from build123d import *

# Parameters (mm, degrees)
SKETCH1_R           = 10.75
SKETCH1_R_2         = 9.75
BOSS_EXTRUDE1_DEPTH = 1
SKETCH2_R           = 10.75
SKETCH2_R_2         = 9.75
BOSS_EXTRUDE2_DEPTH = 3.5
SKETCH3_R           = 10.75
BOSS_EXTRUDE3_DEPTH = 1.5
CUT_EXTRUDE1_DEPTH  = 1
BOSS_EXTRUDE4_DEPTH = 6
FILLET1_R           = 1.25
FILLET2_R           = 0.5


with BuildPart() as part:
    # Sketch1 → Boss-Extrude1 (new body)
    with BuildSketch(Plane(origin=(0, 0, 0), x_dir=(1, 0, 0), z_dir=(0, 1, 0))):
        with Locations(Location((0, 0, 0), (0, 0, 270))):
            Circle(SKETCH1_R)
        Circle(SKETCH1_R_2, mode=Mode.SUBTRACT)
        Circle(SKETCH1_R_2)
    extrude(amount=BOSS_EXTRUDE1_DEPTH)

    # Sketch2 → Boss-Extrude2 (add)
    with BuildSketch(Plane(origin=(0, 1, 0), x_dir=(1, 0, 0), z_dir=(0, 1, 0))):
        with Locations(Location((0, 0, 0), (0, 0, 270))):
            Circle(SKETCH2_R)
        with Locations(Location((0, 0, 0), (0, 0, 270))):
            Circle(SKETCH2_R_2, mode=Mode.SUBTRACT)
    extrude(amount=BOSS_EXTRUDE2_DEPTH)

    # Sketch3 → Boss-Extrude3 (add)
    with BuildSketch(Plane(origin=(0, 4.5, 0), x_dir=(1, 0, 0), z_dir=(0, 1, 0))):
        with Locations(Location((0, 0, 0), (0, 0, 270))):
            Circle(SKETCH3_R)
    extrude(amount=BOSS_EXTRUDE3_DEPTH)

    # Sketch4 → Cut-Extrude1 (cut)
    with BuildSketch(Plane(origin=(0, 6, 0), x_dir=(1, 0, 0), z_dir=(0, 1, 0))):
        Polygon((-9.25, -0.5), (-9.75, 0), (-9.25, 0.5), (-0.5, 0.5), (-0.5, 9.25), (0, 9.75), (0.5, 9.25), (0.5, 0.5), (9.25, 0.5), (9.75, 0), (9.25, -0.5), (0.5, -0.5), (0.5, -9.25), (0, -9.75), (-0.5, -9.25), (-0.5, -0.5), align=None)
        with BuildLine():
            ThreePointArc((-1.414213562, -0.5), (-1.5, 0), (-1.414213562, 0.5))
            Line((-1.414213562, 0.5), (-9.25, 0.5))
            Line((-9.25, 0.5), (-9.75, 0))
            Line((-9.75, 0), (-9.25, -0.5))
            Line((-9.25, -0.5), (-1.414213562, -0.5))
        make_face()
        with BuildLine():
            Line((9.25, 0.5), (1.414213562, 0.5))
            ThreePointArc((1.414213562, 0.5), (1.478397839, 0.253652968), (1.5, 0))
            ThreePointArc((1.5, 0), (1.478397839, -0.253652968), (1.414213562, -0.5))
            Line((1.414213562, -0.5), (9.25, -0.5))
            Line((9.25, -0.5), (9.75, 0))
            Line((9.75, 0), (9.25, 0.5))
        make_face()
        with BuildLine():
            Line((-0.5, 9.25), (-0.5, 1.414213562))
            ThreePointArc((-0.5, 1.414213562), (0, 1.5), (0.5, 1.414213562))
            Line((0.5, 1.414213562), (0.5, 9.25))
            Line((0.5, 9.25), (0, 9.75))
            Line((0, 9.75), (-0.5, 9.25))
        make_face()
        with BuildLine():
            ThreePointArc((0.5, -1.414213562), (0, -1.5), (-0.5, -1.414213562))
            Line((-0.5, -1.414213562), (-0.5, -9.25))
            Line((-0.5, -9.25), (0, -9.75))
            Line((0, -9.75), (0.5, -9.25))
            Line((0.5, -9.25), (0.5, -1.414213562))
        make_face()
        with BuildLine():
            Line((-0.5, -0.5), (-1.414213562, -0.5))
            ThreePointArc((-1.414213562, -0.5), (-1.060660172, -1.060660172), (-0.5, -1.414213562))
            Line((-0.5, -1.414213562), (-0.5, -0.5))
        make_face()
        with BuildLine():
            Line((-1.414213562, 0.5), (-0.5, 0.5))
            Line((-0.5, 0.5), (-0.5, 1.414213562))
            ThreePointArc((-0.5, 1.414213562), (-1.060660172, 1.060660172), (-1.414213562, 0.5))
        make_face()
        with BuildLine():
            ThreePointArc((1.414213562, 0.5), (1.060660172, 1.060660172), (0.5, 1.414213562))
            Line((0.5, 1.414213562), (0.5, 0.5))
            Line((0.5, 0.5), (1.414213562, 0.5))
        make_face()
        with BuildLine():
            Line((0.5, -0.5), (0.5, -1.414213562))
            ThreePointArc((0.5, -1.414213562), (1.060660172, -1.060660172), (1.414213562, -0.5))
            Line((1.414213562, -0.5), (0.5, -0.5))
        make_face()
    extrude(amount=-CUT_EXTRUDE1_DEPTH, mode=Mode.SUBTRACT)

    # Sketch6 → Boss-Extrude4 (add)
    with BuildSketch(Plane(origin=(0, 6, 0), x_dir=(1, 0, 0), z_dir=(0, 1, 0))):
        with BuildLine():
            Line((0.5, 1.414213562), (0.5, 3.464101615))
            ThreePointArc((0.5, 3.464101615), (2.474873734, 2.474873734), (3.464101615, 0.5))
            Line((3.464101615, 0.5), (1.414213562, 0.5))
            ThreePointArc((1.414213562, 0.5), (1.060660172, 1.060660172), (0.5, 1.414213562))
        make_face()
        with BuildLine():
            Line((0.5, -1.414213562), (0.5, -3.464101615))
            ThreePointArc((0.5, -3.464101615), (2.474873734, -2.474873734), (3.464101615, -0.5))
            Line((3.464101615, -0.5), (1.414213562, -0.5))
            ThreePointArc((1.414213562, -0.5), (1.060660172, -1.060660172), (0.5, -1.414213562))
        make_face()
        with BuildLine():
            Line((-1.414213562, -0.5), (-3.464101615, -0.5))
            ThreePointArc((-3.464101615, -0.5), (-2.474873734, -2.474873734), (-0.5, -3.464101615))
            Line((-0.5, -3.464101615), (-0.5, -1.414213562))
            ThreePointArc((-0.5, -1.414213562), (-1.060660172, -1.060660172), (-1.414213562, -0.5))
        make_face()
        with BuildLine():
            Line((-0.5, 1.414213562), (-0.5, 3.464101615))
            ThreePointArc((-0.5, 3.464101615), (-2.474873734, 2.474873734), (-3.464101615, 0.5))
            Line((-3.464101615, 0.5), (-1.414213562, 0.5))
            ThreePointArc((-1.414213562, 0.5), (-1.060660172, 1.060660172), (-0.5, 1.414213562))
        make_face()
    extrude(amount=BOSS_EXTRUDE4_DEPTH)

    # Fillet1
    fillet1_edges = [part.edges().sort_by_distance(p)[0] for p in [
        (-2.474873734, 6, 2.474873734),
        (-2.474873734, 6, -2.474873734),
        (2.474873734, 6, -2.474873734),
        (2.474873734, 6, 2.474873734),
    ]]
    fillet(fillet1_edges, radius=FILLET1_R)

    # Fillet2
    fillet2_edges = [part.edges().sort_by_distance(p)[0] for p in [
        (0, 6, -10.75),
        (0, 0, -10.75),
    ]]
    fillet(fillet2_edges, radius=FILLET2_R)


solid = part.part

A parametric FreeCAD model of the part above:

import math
import FreeCAD as App
import Part
import Sketcher


def edges_at(feature, points):
    """Names of the edges that pass closest to the given points."""
    edges = feature.Shape.Edges
    near = lambda p: min(range(len(edges)), key=lambda i: edges[i].distToShape(Part.Vertex(*p))[0])
    return sorted({f"Edge{near(p) + 1}" for p in points})

doc = App.newDocument("Part")
body = doc.addObject("PartDesign::Body", "Body")

sketch1 = body.newObject("Sketcher::SketchObject", "Sketch")
sketch1.AttachmentSupport = (doc.getObject("XZ_Plane"), [""])
sketch1.MapMode = "FlatFace"
sketch1.addGeometry(Part.Circle(App.Vector(0, 0, 0), App.Vector(0, 0, 1), 10.75), False)
sketch1.addConstraint(Sketcher.Constraint("Coincident", 0, 3, -1, 1))
sketch1.addConstraint(Sketcher.Constraint("Diameter", 0, 21.5))
pad1 = body.newObject("PartDesign::Pad", "Pad")
pad1.Profile = sketch1
pad1.Length = 1
pad1.Reversed = True

sketch2 = body.newObject("Sketcher::SketchObject", "Sketch001")
sketch2.AttachmentSupport = (doc.getObject("XZ_Plane"), [""])
sketch2.MapMode = "FlatFace"
sketch2.AttachmentOffset = App.Placement(App.Vector(0, 0, -1), App.Rotation())
sketch2.addGeometry(Part.Circle(App.Vector(0, 0, 0), App.Vector(0, 0, 1), 10.75), False)
sketch2.addGeometry(Part.Circle(App.Vector(0, 0, 0), App.Vector(0, 0, 1), 9.75), False)
sketch2.addConstraint(Sketcher.Constraint("Coincident", 0, 3, -1, 1))
sketch2.addConstraint(Sketcher.Constraint("Coincident", 1, 3, -1, 1))
sketch2.addConstraint(Sketcher.Constraint("Diameter", 0, 21.5))
sketch2.addConstraint(Sketcher.Constraint("Diameter", 1, 19.5))
pad2 = body.newObject("PartDesign::Pad", "Pad001")
pad2.Profile = sketch2
pad2.Length = 3.5
pad2.Reversed = True

sketch3 = body.newObject("Sketcher::SketchObject", "Sketch002")
sketch3.AttachmentSupport = (doc.getObject("XZ_Plane"), [""])
sketch3.MapMode = "FlatFace"
sketch3.AttachmentOffset = App.Placement(App.Vector(0, 0, -4.5), App.Rotation())
sketch3.addGeometry(Part.Circle(App.Vector(0, 0, 0), App.Vector(0, 0, 1), 10.75), False)
sketch3.addConstraint(Sketcher.Constraint("Coincident", 0, 3, -1, 1))
sketch3.addConstraint(Sketcher.Constraint("Diameter", 0, 21.5))
pad3 = body.newObject("PartDesign::Pad", "Pad002")
pad3.Profile = sketch3
pad3.Length = 1.5
pad3.Reversed = True

sketch4 = body.newObject("Sketcher::SketchObject", "Sketch003")
sketch4.AttachmentSupport = (doc.getObject("XZ_Plane"), [""])
sketch4.MapMode = "FlatFace"
sketch4.AttachmentOffset = App.Placement(App.Vector(0, 0, -6), App.Rotation())
sketch4.addGeometry(Part.LineSegment(App.Vector(-9.25, 0.5, 0), App.Vector(-1.414214, 0.5, 0)), False)
sketch4.addGeometry(Part.ArcOfCircle(Part.Circle(App.Vector(0, 0, 0), App.Vector(0, 0, 1), 1.5), math.radians(109.471221), math.radians(160.528779)), False)
sketch4.addGeometry(Part.LineSegment(App.Vector(-0.5, 1.414214, 0), App.Vector(-0.5, 9.25, 0)), False)
sketch4.addGeometry(Part.LineSegment(App.Vector(-0.5, 9.25, 0), App.Vector(0, 9.75, 0)), False)
sketch4.addGeometry(Part.LineSegment(App.Vector(0, 9.75, 0), App.Vector(0.5, 9.25, 0)), False)
sketch4.addGeometry(Part.LineSegment(App.Vector(0.5, 9.25, 0), App.Vector(0.5, 1.414214, 0)), False)
sketch4.addGeometry(Part.ArcOfCircle(Part.Circle(App.Vector(0, 0, 0), App.Vector(0, 0, 1), 1.5), math.radians(19.471221), math.radians(70.528779)), False)
sketch4.addGeometry(Part.LineSegment(App.Vector(1.414214, 0.5, 0), App.Vector(9.25, 0.5, 0)), False)
sketch4.addGeometry(Part.LineSegment(App.Vector(9.25, 0.5, 0), App.Vector(9.75, 0, 0)), False)
sketch4.addGeometry(Part.LineSegment(App.Vector(9.75, 0, 0), App.Vector(9.25, -0.5, 0)), False)
sketch4.addGeometry(Part.LineSegment(App.Vector(9.25, -0.5, 0), App.Vector(1.414214, -0.5, 0)), False)
sketch4.addGeometry(Part.ArcOfCircle(Part.Circle(App.Vector(0, 0, 0), App.Vector(0, 0, 1), 1.5), math.radians(-70.528779), math.radians(-19.471221)), False)
sketch4.addGeometry(Part.LineSegment(App.Vector(0.5, -1.414214, 0), App.Vector(0.5, -9.25, 0)), False)
sketch4.addGeometry(Part.LineSegment(App.Vector(0.5, -9.25, 0), App.Vector(0, -9.75, 0)), False)
sketch4.addGeometry(Part.LineSegment(App.Vector(0, -9.75, 0), App.Vector(-0.5, -9.25, 0)), False)
sketch4.addGeometry(Part.LineSegment(App.Vector(-0.5, -9.25, 0), App.Vector(-0.5, -1.414214, 0)), False)
sketch4.addGeometry(Part.ArcOfCircle(Part.Circle(App.Vector(0, 0, 0), App.Vector(0, 0, 1), 1.5), math.radians(-160.528779), math.radians(-109.471221)), False)
sketch4.addGeometry(Part.LineSegment(App.Vector(-1.414214, -0.5, 0), App.Vector(-9.25, -0.5, 0)), False)
sketch4.addGeometry(Part.LineSegment(App.Vector(-9.25, -0.5, 0), App.Vector(-9.75, 0, 0)), False)
sketch4.addGeometry(Part.LineSegment(App.Vector(-9.75, 0, 0), App.Vector(-9.25, 0.5, 0)), False)
sketch4.addConstraint(Sketcher.Constraint("Coincident", 0, 2, 1, 2))
sketch4.addConstraint(Sketcher.Constraint("Coincident", 1, 1, 2, 1))
sketch4.addConstraint(Sketcher.Constraint("Coincident", 2, 2, 3, 1))
sketch4.addConstraint(Sketcher.Constraint("Coincident", 3, 2, 4, 1))
sketch4.addConstraint(Sketcher.Constraint("Coincident", 4, 2, 5, 1))
sketch4.addConstraint(Sketcher.Constraint("Coincident", 5, 2, 6, 2))
sketch4.addConstraint(Sketcher.Constraint("Coincident", 6, 1, 7, 1))
sketch4.addConstraint(Sketcher.Constraint("Coincident", 7, 2, 8, 1))
sketch4.addConstraint(Sketcher.Constraint("Coincident", 8, 2, 9, 1))
sketch4.addConstraint(Sketcher.Constraint("Coincident", 9, 2, 10, 1))
sketch4.addConstraint(Sketcher.Constraint("Coincident", 10, 2, 11, 2))
sketch4.addConstraint(Sketcher.Constraint("Coincident", 11, 1, 12, 1))
sketch4.addConstraint(Sketcher.Constraint("Coincident", 12, 2, 13, 1))
sketch4.addConstraint(Sketcher.Constraint("Coincident", 13, 2, 14, 1))
sketch4.addConstraint(Sketcher.Constraint("Coincident", 14, 2, 15, 1))
sketch4.addConstraint(Sketcher.Constraint("Coincident", 15, 2, 16, 2))
sketch4.addConstraint(Sketcher.Constraint("Coincident", 16, 1, 17, 1))
sketch4.addConstraint(Sketcher.Constraint("Coincident", 17, 2, 18, 1))
sketch4.addConstraint(Sketcher.Constraint("Coincident", 18, 2, 19, 1))
sketch4.addConstraint(Sketcher.Constraint("Coincident", 19, 2, 0, 1))
sketch4.addConstraint(Sketcher.Constraint("Horizontal", 0))
sketch4.addConstraint(Sketcher.Constraint("Vertical", 2))
sketch4.addConstraint(Sketcher.Constraint("Vertical", 5))
sketch4.addConstraint(Sketcher.Constraint("Horizontal", 7))
sketch4.addConstraint(Sketcher.Constraint("Horizontal", 10))
sketch4.addConstraint(Sketcher.Constraint("Vertical", 12))
sketch4.addConstraint(Sketcher.Constraint("Vertical", 15))
sketch4.addConstraint(Sketcher.Constraint("Horizontal", 17))
sketch4.addConstraint(Sketcher.Constraint("Coincident", 1, 3, -1, 1))
sketch4.addConstraint(Sketcher.Constraint("Coincident", 6, 3, -1, 1))
sketch4.addConstraint(Sketcher.Constraint("Coincident", 11, 3, -1, 1))
sketch4.addConstraint(Sketcher.Constraint("Coincident", 16, 3, -1, 1))
sketch4.addConstraint(Sketcher.Constraint("Equal", 1, 6))
sketch4.addConstraint(Sketcher.Constraint("Equal", 6, 11))
sketch4.addConstraint(Sketcher.Constraint("Equal", 11, 16))
sketch4.addConstraint(Sketcher.Constraint("Symmetric", 2, 2, 12, 2, -1, 1))
sketch4.addConstraint(Sketcher.Constraint("Symmetric", 3, 2, 13, 2, -1, 1))
sketch4.addConstraint(Sketcher.Constraint("Symmetric", 4, 2, 14, 2, -1, 1))
sketch4.addConstraint(Sketcher.Constraint("Symmetric", 7, 2, 17, 2, -1, 1))
sketch4.addConstraint(Sketcher.Constraint("Symmetric", 8, 2, 18, 2, -1, 1))
sketch4.addConstraint(Sketcher.Constraint("Symmetric", 9, 2, 19, 2, -1, 1))
sketch4.addConstraint(Sketcher.Constraint("Symmetric", 2, 2, 4, 2, -2))
sketch4.addConstraint(Sketcher.Constraint("Symmetric", 9, 2, 17, 2, -2))
sketch4.addConstraint(Sketcher.Constraint("PointOnObject", 3, 2, -2))
sketch4.addConstraint(Sketcher.Constraint("PointOnObject", 8, 2, -1))
sketch4.addConstraint(Sketcher.Constraint("Perpendicular", 3, 4))
sketch4.addConstraint(Sketcher.Constraint("Parallel", 4, 8))
sketch4.addConstraint(Sketcher.Constraint("Equal", 17, 2))
sketch4.addConstraint(Sketcher.Constraint("Equal", 4, 8))
sketch4.addConstraint(Sketcher.Constraint("Radius", 1, 1.5))
sketch4.addConstraint(Sketcher.Constraint("DistanceX", 2, 2, 4, 2, 1.0))
sketch4.addConstraint(Sketcher.Constraint("DistanceY", -1, 1, 2, 2, 9.25))
pocket1 = body.newObject("PartDesign::Pocket", "Pocket")
pocket1.Profile = sketch4
pocket1.Length = 1
pocket1.Reversed = True

sketch5 = body.newObject("Sketcher::SketchObject", "Sketch004")
sketch5.AttachmentSupport = (doc.getObject("XZ_Plane"), [""])
sketch5.MapMode = "FlatFace"
sketch5.AttachmentOffset = App.Placement(App.Vector(0, 0, -6), App.Rotation())
sketch5.addGeometry(Part.LineSegment(App.Vector(0.5, -3.464102, 0), App.Vector(0.5, -1.414214, 0)), False)
sketch5.addGeometry(Part.ArcOfCircle(Part.Circle(App.Vector(0, 0, 0), App.Vector(0, 0, 1), 1.5), math.radians(-70.528779), math.radians(-19.471221)), False)
sketch5.addGeometry(Part.LineSegment(App.Vector(1.414214, -0.5, 0), App.Vector(3.464102, -0.5, 0)), False)
sketch5.addGeometry(Part.ArcOfCircle(Part.Circle(App.Vector(0, 0, 0), App.Vector(0, 0, 1), 3.5), math.radians(-81.786789), math.radians(-8.213211)), False)
sketch5.addGeometry(Part.LineSegment(App.Vector(0.5, 1.414214, 0), App.Vector(0.5, 3.464102, 0)), False)
sketch5.addGeometry(Part.ArcOfCircle(Part.Circle(App.Vector(0, 0, 0), App.Vector(0, 0, 1), 3.5), math.radians(8.213211), math.radians(81.786789)), False)
sketch5.addGeometry(Part.LineSegment(App.Vector(3.464102, 0.5, 0), App.Vector(1.414214, 0.5, 0)), False)
sketch5.addGeometry(Part.ArcOfCircle(Part.Circle(App.Vector(0, 0, 0), App.Vector(0, 0, 1), 1.5), math.radians(19.471221), math.radians(70.528779)), False)
sketch5.addGeometry(Part.LineSegment(App.Vector(-1.414214, 0.5, 0), App.Vector(-3.464102, 0.5, 0)), False)
sketch5.addGeometry(Part.ArcOfCircle(Part.Circle(App.Vector(0, 0, 0), App.Vector(0, 0, 1), 3.5), math.radians(98.213211), math.radians(171.786789)), False)
sketch5.addGeometry(Part.LineSegment(App.Vector(-0.5, 3.464102, 0), App.Vector(-0.5, 1.414214, 0)), False)
sketch5.addGeometry(Part.ArcOfCircle(Part.Circle(App.Vector(0, 0, 0), App.Vector(0, 0, 1), 1.5), math.radians(109.471221), math.radians(160.528779)), False)
sketch5.addGeometry(Part.LineSegment(App.Vector(-0.5, -1.414214, 0), App.Vector(-0.5, -3.464102, 0)), False)
sketch5.addGeometry(Part.ArcOfCircle(Part.Circle(App.Vector(0, 0, 0), App.Vector(0, 0, 1), 3.5), math.radians(-171.786789), math.radians(-98.213211)), False)
sketch5.addGeometry(Part.LineSegment(App.Vector(-3.464102, -0.5, 0), App.Vector(-1.414214, -0.5, 0)), False)
sketch5.addGeometry(Part.ArcOfCircle(Part.Circle(App.Vector(0, 0, 0), App.Vector(0, 0, 1), 1.5), math.radians(-160.528779), math.radians(-109.471221)), False)
sketch5.addConstraint(Sketcher.Constraint("Coincident", 0, 2, 1, 1))
sketch5.addConstraint(Sketcher.Constraint("Coincident", 1, 2, 2, 1))
sketch5.addConstraint(Sketcher.Constraint("Coincident", 2, 2, 3, 2))
sketch5.addConstraint(Sketcher.Constraint("Coincident", 3, 1, 0, 1))
sketch5.addConstraint(Sketcher.Constraint("Coincident", 4, 2, 5, 2))
sketch5.addConstraint(Sketcher.Constraint("Coincident", 5, 1, 6, 1))
sketch5.addConstraint(Sketcher.Constraint("Coincident", 6, 2, 7, 1))
sketch5.addConstraint(Sketcher.Constraint("Coincident", 7, 2, 4, 1))
sketch5.addConstraint(Sketcher.Constraint("Coincident", 8, 2, 9, 2))
sketch5.addConstraint(Sketcher.Constraint("Coincident", 9, 1, 10, 1))
sketch5.addConstraint(Sketcher.Constraint("Coincident", 10, 2, 11, 1))
sketch5.addConstraint(Sketcher.Constraint("Coincident", 11, 2, 8, 1))
sketch5.addConstraint(Sketcher.Constraint("Coincident", 12, 2, 13, 2))
sketch5.addConstraint(Sketcher.Constraint("Coincident", 13, 1, 14, 1))
sketch5.addConstraint(Sketcher.Constraint("Coincident", 14, 2, 15, 1))
sketch5.addConstraint(Sketcher.Constraint("Coincident", 15, 2, 12, 1))
sketch5.addConstraint(Sketcher.Constraint("Vertical", 0))
sketch5.addConstraint(Sketcher.Constraint("Horizontal", 2))
sketch5.addConstraint(Sketcher.Constraint("Vertical", 4))
sketch5.addConstraint(Sketcher.Constraint("Horizontal", 6))
sketch5.addConstraint(Sketcher.Constraint("Horizontal", 8))
sketch5.addConstraint(Sketcher.Constraint("Vertical", 10))
sketch5.addConstraint(Sketcher.Constraint("Vertical", 12))
sketch5.addConstraint(Sketcher.Constraint("Horizontal", 14))
sketch5.addConstraint(Sketcher.Constraint("Coincident", 1, 3, -1, 1))
sketch5.addConstraint(Sketcher.Constraint("Coincident", 3, 3, -1, 1))
sketch5.addConstraint(Sketcher.Constraint("Coincident", 5, 3, -1, 1))
sketch5.addConstraint(Sketcher.Constraint("Coincident", 7, 3, -1, 1))
sketch5.addConstraint(Sketcher.Constraint("Coincident", 9, 3, -1, 1))
sketch5.addConstraint(Sketcher.Constraint("Coincident", 11, 3, -1, 1))
sketch5.addConstraint(Sketcher.Constraint("Coincident", 13, 3, -1, 1))
sketch5.addConstraint(Sketcher.Constraint("Coincident", 15, 3, -1, 1))
sketch5.addConstraint(Sketcher.Constraint("Equal", 3, 5))
sketch5.addConstraint(Sketcher.Constraint("Equal", 1, 7))
sketch5.addConstraint(Sketcher.Constraint("Equal", 5, 9))
sketch5.addConstraint(Sketcher.Constraint("Equal", 7, 11))
sketch5.addConstraint(Sketcher.Constraint("Equal", 9, 13))
sketch5.addConstraint(Sketcher.Constraint("Equal", 11, 15))
sketch5.addConstraint(Sketcher.Constraint("Horizontal", 6, 2, 8, 2))
sketch5.addConstraint(Sketcher.Constraint("Horizontal", 4, 2, 9, 1))
sketch5.addConstraint(Sketcher.Constraint("Horizontal", 3, 1, 12, 2))
sketch5.addConstraint(Sketcher.Constraint("Horizontal", 2, 2, 13, 1))
sketch5.addConstraint(Sketcher.Constraint("Vertical", 3, 1, 4, 2))
sketch5.addConstraint(Sketcher.Constraint("Vertical", 2, 2, 5, 1))
sketch5.addConstraint(Sketcher.Constraint("Equal", 14, 0))
sketch5.addConstraint(Sketcher.Constraint("Radius", 1, 1.5))
sketch5.addConstraint(Sketcher.Constraint("Radius", 3, 3.5))
sketch5.addConstraint(Sketcher.Constraint("DistanceY", 2, 2, 5, 1, 1.0))
pad4 = body.newObject("PartDesign::Pad", "Pad003")
pad4.Profile = sketch5
pad4.Length = 6
pad4.Reversed = True
doc.recompute()

fillet = body.newObject("PartDesign::Fillet", "Fillet")
fillet.Base = (pad4, edges_at(pad4, [
    (-2.475, 6, 2.475),
    (-2.475, 6, -2.475),
    (2.475, 6, -2.475),
    (2.475, 6, 2.475),
]))
fillet.Radius = 1.25
doc.recompute()

fillet2 = body.newObject("PartDesign::Fillet", "Fillet001")
fillet2.Base = (fillet, edges_at(fillet, [(0, 6, -10.75), (0, 0, -10.75)]))
fillet2.Radius = 0.5

doc.recompute()
